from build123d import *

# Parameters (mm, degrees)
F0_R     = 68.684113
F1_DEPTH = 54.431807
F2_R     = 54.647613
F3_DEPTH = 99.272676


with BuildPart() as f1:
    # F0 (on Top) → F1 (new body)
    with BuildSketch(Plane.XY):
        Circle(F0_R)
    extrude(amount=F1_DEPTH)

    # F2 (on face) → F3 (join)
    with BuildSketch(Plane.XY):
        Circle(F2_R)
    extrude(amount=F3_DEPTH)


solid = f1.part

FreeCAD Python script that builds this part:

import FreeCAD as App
import Part
import Sketcher

V = App.Vector
Q = App.Units.Quantity

doc = App.newDocument("Part")
body = doc.addObject("PartDesign::Body", "Body")

# Sketch on XY plane
sketch1 = body.newObject("Sketcher::SketchObject", "Sketch")
sketch1.AttachmentSupport = (doc.getObject("XY_Plane"), [""])
sketch1.MapMode = "FlatFace"
sketch1.addGeometry(Part.Circle(V(0, 0, 0), V(0, 0, 1), 69), False)
sketch1.addConstraint(Sketcher.Constraint("Coincident", 0, 3, -1, 1))
sketch1.addConstraint(Sketcher.Constraint("Diameter", 0, Q("137.368226 mm")))
pad1 = body.newObject("PartDesign::Pad", "Pad")
pad1.Profile = sketch1
pad1.Length = 54.431807

# Sketch on XY plane
sketch2 = body.newObject("Sketcher::SketchObject", "Sketch001")
sketch2.AttachmentSupport = (doc.getObject("XY_Plane"), [""])
sketch2.MapMode = "FlatFace"
sketch2.addGeometry(Part.Circle(V(0, 0, 0), V(0, 0, 1), 55), False)
sketch2.addConstraint(Sketcher.Constraint("Coincident", 0, 3, -1, 1))
sketch2.addConstraint(Sketcher.Constraint("Diameter", 0, Q("109.295226 mm")))
pad2 = body.newObject("PartDesign::Pad", "Pad001")
pad2.Profile = sketch2
pad2.Length = 99.272676

doc.recompute()
